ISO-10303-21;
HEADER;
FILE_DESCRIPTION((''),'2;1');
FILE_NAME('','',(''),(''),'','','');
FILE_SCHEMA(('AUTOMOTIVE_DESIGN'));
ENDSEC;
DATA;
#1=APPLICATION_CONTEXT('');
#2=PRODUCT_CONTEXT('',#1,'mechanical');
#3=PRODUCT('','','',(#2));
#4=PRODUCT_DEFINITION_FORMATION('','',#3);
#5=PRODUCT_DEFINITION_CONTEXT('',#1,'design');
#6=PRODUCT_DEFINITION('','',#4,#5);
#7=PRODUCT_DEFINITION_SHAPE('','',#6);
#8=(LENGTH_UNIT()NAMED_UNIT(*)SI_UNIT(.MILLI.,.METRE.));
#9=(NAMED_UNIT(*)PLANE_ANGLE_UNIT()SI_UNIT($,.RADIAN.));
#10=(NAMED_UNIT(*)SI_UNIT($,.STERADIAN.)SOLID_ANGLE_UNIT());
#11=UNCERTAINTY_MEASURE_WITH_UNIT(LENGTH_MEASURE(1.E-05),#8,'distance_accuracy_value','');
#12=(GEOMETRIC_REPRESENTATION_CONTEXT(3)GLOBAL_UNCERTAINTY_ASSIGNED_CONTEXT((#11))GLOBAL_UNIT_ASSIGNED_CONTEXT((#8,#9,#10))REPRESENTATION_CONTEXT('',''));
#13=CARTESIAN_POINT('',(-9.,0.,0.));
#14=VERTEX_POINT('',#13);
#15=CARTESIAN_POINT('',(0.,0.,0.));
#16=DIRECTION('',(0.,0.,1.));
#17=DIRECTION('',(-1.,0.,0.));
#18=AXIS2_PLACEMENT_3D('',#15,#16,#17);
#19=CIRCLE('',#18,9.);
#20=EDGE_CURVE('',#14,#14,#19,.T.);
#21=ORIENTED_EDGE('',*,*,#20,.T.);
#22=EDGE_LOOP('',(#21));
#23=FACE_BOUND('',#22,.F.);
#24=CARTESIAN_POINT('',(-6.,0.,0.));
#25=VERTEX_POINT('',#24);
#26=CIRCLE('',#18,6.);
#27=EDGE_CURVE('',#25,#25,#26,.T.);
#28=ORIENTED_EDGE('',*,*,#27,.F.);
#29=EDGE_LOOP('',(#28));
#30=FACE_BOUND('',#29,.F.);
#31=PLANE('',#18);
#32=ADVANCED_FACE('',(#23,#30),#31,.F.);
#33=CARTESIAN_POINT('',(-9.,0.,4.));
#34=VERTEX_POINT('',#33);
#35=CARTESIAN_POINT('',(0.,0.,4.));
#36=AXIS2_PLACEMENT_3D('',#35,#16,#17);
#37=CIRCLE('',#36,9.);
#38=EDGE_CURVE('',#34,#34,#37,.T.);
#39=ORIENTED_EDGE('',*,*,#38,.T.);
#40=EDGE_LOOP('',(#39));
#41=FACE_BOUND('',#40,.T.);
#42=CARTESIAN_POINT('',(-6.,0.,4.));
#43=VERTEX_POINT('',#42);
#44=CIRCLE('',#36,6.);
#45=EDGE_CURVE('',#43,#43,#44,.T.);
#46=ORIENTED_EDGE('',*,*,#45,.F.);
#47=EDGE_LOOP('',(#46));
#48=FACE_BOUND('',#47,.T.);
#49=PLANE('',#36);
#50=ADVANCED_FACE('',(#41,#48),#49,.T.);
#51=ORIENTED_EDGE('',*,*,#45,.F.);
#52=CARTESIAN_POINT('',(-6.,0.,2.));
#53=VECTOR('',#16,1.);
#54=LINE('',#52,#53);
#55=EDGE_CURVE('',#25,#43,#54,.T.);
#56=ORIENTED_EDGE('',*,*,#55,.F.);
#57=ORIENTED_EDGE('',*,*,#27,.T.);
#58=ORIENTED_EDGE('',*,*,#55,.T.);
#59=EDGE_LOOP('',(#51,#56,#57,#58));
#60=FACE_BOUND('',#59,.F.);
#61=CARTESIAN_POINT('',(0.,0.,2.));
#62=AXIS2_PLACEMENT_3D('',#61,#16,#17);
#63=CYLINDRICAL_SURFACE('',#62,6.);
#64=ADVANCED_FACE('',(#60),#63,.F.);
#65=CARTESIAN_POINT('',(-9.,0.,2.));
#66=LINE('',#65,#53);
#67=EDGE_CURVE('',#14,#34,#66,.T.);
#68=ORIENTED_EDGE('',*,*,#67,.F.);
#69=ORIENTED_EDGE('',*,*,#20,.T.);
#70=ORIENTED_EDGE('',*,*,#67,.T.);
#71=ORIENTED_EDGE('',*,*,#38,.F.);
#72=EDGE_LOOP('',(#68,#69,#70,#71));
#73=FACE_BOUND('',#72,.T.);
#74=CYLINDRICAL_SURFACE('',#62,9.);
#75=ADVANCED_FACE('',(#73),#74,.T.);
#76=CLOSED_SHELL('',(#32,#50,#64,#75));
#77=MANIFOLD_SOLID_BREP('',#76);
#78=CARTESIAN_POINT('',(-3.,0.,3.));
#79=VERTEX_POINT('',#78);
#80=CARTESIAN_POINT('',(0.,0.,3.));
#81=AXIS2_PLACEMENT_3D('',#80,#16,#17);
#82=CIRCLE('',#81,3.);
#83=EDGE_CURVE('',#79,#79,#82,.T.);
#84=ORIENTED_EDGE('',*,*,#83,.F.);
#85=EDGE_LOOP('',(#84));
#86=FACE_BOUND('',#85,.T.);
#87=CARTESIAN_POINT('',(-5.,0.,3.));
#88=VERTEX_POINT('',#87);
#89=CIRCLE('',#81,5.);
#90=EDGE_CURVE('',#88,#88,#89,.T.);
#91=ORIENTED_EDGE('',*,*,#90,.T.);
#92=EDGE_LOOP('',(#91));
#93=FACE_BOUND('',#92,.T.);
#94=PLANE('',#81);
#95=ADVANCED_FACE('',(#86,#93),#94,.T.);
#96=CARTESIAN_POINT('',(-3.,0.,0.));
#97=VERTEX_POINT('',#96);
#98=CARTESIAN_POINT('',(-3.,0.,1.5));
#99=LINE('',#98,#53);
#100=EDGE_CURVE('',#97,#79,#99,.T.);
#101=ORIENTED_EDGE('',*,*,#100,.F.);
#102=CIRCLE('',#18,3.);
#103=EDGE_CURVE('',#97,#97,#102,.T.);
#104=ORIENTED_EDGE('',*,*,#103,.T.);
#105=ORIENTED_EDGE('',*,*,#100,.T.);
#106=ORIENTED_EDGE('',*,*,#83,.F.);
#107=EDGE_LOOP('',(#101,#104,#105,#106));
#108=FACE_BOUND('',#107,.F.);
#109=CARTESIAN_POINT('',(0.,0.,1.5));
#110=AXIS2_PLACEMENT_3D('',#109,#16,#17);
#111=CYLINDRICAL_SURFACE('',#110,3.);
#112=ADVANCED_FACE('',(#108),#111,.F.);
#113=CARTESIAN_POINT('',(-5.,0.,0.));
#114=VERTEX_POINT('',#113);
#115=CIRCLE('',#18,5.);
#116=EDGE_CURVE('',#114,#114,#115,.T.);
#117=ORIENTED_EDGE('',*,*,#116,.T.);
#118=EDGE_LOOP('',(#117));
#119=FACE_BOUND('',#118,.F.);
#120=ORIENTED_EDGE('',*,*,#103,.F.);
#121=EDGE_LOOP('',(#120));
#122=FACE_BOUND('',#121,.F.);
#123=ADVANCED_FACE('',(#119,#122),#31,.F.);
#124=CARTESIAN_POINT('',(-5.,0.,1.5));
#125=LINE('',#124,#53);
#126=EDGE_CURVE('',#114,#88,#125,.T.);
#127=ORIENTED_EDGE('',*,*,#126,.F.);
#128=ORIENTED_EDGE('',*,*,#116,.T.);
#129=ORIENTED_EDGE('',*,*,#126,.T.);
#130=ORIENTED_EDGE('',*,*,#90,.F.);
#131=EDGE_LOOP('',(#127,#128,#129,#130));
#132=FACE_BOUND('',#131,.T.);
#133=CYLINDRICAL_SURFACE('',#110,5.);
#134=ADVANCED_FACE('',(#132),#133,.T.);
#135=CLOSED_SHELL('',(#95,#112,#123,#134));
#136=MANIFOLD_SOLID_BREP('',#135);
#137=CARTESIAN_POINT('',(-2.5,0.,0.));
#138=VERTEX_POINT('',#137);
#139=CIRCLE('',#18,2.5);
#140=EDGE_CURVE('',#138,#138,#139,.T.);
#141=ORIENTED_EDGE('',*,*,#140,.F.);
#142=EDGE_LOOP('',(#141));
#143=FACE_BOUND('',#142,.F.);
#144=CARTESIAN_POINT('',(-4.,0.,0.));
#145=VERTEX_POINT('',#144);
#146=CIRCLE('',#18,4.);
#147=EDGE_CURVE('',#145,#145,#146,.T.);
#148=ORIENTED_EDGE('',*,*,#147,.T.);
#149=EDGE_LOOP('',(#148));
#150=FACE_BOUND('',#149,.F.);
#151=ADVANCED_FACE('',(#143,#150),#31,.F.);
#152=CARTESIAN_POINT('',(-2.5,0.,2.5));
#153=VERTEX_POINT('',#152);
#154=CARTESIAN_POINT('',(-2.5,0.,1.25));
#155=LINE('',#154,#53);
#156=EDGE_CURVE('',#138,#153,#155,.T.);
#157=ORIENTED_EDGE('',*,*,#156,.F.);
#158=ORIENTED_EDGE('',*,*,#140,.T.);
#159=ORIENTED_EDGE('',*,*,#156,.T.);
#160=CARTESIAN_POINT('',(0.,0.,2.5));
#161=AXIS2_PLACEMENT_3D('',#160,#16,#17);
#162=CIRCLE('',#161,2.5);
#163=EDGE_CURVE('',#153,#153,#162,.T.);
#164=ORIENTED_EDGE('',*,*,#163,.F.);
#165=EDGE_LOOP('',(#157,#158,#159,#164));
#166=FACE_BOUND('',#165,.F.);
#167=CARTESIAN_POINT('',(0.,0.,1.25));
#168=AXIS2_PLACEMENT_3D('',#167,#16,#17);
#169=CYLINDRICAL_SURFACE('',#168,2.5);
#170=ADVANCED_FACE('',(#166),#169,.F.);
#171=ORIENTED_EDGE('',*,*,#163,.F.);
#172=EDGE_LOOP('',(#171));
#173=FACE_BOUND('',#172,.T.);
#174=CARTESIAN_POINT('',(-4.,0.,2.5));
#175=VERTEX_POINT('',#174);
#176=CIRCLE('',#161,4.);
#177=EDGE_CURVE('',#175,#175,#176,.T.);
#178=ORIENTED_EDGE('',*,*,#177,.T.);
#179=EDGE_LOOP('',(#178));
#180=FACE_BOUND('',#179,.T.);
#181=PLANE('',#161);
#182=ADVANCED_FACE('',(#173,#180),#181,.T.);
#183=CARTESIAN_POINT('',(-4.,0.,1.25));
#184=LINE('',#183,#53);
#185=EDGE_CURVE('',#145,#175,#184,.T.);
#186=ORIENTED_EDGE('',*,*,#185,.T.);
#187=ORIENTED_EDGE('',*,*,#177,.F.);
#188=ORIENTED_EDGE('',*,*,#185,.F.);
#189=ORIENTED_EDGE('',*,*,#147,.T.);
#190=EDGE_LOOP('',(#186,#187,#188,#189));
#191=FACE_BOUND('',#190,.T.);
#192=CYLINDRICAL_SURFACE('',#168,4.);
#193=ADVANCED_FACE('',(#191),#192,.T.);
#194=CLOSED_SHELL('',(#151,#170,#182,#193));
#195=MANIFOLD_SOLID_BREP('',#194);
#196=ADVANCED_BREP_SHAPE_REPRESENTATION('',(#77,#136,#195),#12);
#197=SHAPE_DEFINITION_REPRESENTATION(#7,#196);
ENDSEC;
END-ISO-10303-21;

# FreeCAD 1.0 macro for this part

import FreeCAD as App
import Part
import Sketcher
from FreeCAD import Vector

doc = App.newDocument("Part")
body = doc.addObject("PartDesign::Body", "Body")

sketch1 = doc.addObject("Sketcher::SketchObject", "Sketch")
body.addObject(sketch1)
sketch1.AttachmentSupport = (doc.XZ_Plane, [""])
sketch1.MapMode = "FlatFace"
sketch1.addGeometry([
    Part.LineSegment(Vector(-4, 2.5, 0), Vector(-4, 0, 0)),
    Part.LineSegment(Vector(-4, 0, 0), Vector(-2.5, 0, 0)),
    Part.LineSegment(Vector(-2.5, 0, 0), Vector(-2.5, 2.5, 0)),
    Part.LineSegment(Vector(-2.5, 2.5, 0), Vector(-4, 2.5, 0)),
], False)
sketch1.addConstraint([
    Sketcher.Constraint("Coincident", 0, 2, 1, 1),
    Sketcher.Constraint("Coincident", 1, 2, 2, 1),
    Sketcher.Constraint("Coincident", 2, 2, 3, 1),
    Sketcher.Constraint("Coincident", 3, 2, 0, 1),
    Sketcher.Constraint("Vertical", 0),
    Sketcher.Constraint("Horizontal", 1),
    Sketcher.Constraint("Vertical", 2),
    Sketcher.Constraint("Horizontal", 3),
    Sketcher.Constraint("PointOnObject", 0, 2, -1),
    Sketcher.Constraint("DistanceX", 1, 1, 1, 2, 1.5),
    Sketcher.Constraint("DistanceY", 0, 2, 0, 1, 2.5),
    Sketcher.Constraint("DistanceX", 0, 2, -1, 1, 4.0),
])
revolution = doc.addObject("PartDesign::Revolution", "Revolution")
body.addObject(revolution)
revolution.Profile = sketch1
revolution.ReferenceAxis = (sketch1, ["V_Axis"])
revolution.Angle = 360
body2 = doc.addObject("PartDesign::Body", "Body001")

sketch2 = doc.addObject("Sketcher::SketchObject", "Sketch001")
body2.addObject(sketch2)
sketch2.AttachmentSupport = (doc.getObject("XZ_Plane001"), [""])
sketch2.MapMode = "FlatFace"
sketch2.addGeometry([
    Part.LineSegment(Vector(-9, 4, 0), Vector(-9, 0, 0)),
    Part.LineSegment(Vector(-9, 0, 0), Vector(-6, 0, 0)),
    Part.LineSegment(Vector(-6, 0, 0), Vector(-6, 4, 0)),
    Part.LineSegment(Vector(-6, 4, 0), Vector(-9, 4, 0)),
], False)
sketch2.addConstraint([
    Sketcher.Constraint("Coincident", 0, 2, 1, 1),
    Sketcher.Constraint("Coincident", 1, 2, 2, 1),
    Sketcher.Constraint("Coincident", 2, 2, 3, 1),
    Sketcher.Constraint("Coincident", 3, 2, 0, 1),
    Sketcher.Constraint("Vertical", 0),
    Sketcher.Constraint("Horizontal", 1),
    Sketcher.Constraint("Vertical", 2),
    Sketcher.Constraint("Horizontal", 3),
    Sketcher.Constraint("PointOnObject", 0, 2, -1),
    Sketcher.Constraint("DistanceX", 1, 1, 1, 2, 3.0),
    Sketcher.Constraint("DistanceY", 0, 2, 0, 1, 4.0),
    Sketcher.Constraint("DistanceX", 0, 2, -1, 1, 9.0),
])
revolution2 = doc.addObject("PartDesign::Revolution", "Revolution001")
body2.addObject(revolution2)
revolution2.Profile = sketch2
revolution2.ReferenceAxis = (sketch2, ["V_Axis"])
revolution2.Angle = 360
body3 = doc.addObject("PartDesign::Body", "Body002")

sketch3 = doc.addObject("Sketcher::SketchObject", "Sketch002")
body3.addObject(sketch3)
sketch3.AttachmentSupport = (doc.getObject("XZ_Plane002"), [""])
sketch3.MapMode = "FlatFace"
sketch3.addGeometry([
    Part.LineSegment(Vector(-5, 3, 0), Vector(-5, 0, 0)),
    Part.LineSegment(Vector(-5, 0, 0), Vector(-3, 0, 0)),
    Part.LineSegment(Vector(-3, 0, 0), Vector(-3, 3, 0)),
    Part.LineSegment(Vector(-3, 3, 0), Vector(-5, 3, 0)),
], False)
sketch3.addConstraint([
    Sketcher.Constraint("Coincident", 0, 2, 1, 1),
    Sketcher.Constraint("Coincident", 1, 2, 2, 1),
    Sketcher.Constraint("Coincident", 2, 2, 3, 1),
    Sketcher.Constraint("Coincident", 3, 2, 0, 1),
    Sketcher.Constraint("Vertical", 0),
    Sketcher.Constraint("Horizontal", 1),
    Sketcher.Constraint("Vertical", 2),
    Sketcher.Constraint("Horizontal", 3),
    Sketcher.Constraint("PointOnObject", 0, 2, -1),
    Sketcher.Constraint("DistanceX", 1, 1, 1, 2, 2.0),
    Sketcher.Constraint("DistanceY", 0, 2, 0, 1, 3.0),
    Sketcher.Constraint("DistanceX", 0, 2, -1, 1, 5.0),
])
revolution3 = doc.addObject("PartDesign::Revolution", "Revolution002")
body3.addObject(revolution3)
revolution3.Profile = sketch3
revolution3.ReferenceAxis = (sketch3, ["V_Axis"])
revolution3.Angle = 360

doc.recompute()
